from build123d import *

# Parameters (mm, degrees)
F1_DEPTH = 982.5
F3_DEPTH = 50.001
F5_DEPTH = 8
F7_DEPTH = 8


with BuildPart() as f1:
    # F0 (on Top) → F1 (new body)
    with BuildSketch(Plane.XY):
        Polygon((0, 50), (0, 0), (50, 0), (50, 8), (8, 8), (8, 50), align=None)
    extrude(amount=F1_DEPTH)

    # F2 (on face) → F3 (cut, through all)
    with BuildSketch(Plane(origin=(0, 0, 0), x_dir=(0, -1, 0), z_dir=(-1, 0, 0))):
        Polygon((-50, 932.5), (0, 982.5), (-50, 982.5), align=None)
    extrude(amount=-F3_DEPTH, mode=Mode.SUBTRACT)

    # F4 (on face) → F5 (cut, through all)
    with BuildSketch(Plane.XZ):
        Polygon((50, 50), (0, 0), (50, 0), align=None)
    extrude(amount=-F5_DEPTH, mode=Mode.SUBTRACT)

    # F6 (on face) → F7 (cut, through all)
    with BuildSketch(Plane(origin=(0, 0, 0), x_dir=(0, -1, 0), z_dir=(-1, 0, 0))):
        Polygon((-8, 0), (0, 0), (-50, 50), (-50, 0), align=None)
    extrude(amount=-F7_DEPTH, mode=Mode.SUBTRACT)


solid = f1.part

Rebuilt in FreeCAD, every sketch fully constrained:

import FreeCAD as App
import Part
import Sketcher

V = App.Vector
Q = App.Units.Quantity

doc = App.newDocument("Part")
body = doc.addObject("PartDesign::Body", "Body")

# Sketch on XY plane
sketch1 = body.newObject("Sketcher::SketchObject", "Sketch")
sketch1.AttachmentSupport = (doc.getObject("XY_Plane"), [""])
sketch1.MapMode = "FlatFace"
sketch1.addGeometry([
    Part.LineSegment(V(0, 50, 0), V(0, 0, 0)),  # 0
    Part.LineSegment(V(0, 0, 0), V(50, 0, 0)),  # 1
    Part.LineSegment(V(50, 0, 0), V(50, 8, 0)),  # 2
    Part.LineSegment(V(50, 8, 0), V(8, 8, 0)),  # 3
    Part.LineSegment(V(8, 8, 0), V(8, 50, 0)),  # 4
    Part.LineSegment(V(8, 50, 0), V(0, 50, 0)),  # 5
], False)
sketch1.addConstraint([
    Sketcher.Constraint("Coincident", 0, 2, 1, 1),
    Sketcher.Constraint("Coincident", 1, 2, 2, 1),
    Sketcher.Constraint("Coincident", 2, 2, 3, 1),
    Sketcher.Constraint("Coincident", 3, 2, 4, 1),
    Sketcher.Constraint("Coincident", 4, 2, 5, 1),
    Sketcher.Constraint("Coincident", 5, 2, 0, 1),
    Sketcher.Constraint("Vertical", 0),
    Sketcher.Constraint("Horizontal", 1),
    Sketcher.Constraint("Vertical", 2),
    Sketcher.Constraint("Horizontal", 3),
    Sketcher.Constraint("Vertical", 4),
    Sketcher.Constraint("Horizontal", 5),
    Sketcher.Constraint("Coincident", 0, 2, -1, 1),
    Sketcher.Constraint("Equal", 1, 0),
    Sketcher.Constraint("Equal", 5, 2),
    Sketcher.Constraint("DistanceX", 1, 1, 1, 2, Q("50 mm")),
    Sketcher.Constraint("DistanceX", 3, 2, 3, 1, Q("42 mm")),
])
pad1 = body.newObject("PartDesign::Pad", "Pad")
pad1.Profile = sketch1
pad1.Length = 982.5

# Sketch on YZ plane
sketch2 = body.newObject("Sketcher::SketchObject", "Sketch001")
sketch2.AttachmentSupport = (doc.getObject("YZ_Plane"), [""])
sketch2.MapMode = "FlatFace"
sketch2.addGeometry([
    Part.LineSegment(V(50, 932, 0), V(0, 982, 0)),
    Part.LineSegment(V(0, 982, 0), V(50, 982, 0)),
    Part.LineSegment(V(50, 982, 0), V(50, 932, 0)),
], False)
sketch2.addConstraint([
    Sketcher.Constraint("Coincident", 0, 2, 1, 1),
    Sketcher.Constraint("Coincident", 1, 2, 2, 1),
    Sketcher.Constraint("Coincident", 2, 2, 0, 1),
    Sketcher.Constraint("Horizontal", 1),
    Sketcher.Constraint("Vertical", 2),
    Sketcher.Constraint("PointOnObject", 0, 2, -2),
    Sketcher.Constraint("Equal", 1, 2),
    Sketcher.Constraint("DistanceX", 1, 1, 1, 2, Q("50 mm")),
    Sketcher.Constraint("DistanceY", -1, 1, 0, 2, Q("982.5 mm")),
])
pocket1 = body.newObject("PartDesign::Pocket", "Pocket")
pocket1.Profile = sketch2
pocket1.Type = "ThroughAll"
pocket1.Reversed = True

# Sketch on XZ plane
sketch3 = body.newObject("Sketcher::SketchObject", "Sketch002")
sketch3.AttachmentSupport = (doc.getObject("XZ_Plane"), [""])
sketch3.MapMode = "FlatFace"
sketch3.addGeometry([
    Part.LineSegment(V(50, 50, 0), V(0, 0, 0)),
    Part.LineSegment(V(0, 0, 0), V(50, 0, 0)),
    Part.LineSegment(V(50, 0, 0), V(50, 50, 0)),
], False)
sketch3.addConstraint([
    Sketcher.Constraint("Coincident", 0, 2, 1, 1),
    Sketcher.Constraint("Coincident", 1, 2, 2, 1),
    Sketcher.Constraint("Coincident", 2, 2, 0, 1),
    Sketcher.Constraint("Horizontal", 1),
    Sketcher.Constraint("Vertical", 2),
    Sketcher.Constraint("Coincident", 0, 2, -1, 1),
    Sketcher.Constraint("Equal", 1, 2),
    Sketcher.Constraint("DistanceX", 1, 1, 1, 2, Q("50 mm")),
])
pocket2 = body.newObject("PartDesign::Pocket", "Pocket001")
pocket2.Profile = sketch3
pocket2.Length = 8

# Sketch on YZ plane
sketch4 = body.newObject("Sketcher::SketchObject", "Sketch003")
sketch4.AttachmentSupport = (doc.getObject("YZ_Plane"), [""])
sketch4.MapMode = "FlatFace"
sketch4.addGeometry([
    Part.LineSegment(V(0, 0, 0), V(50, 50, 0)),
    Part.LineSegment(V(50, 50, 0), V(50, 0, 0)),
    Part.LineSegment(V(50, 0, 0), V(0, 0, 0)),
], False)
sketch4.addConstraint([
    Sketcher.Constraint("Coincident", 0, 2, 1, 1),
    Sketcher.Constraint("Coincident", 1, 2, 2, 1),
    Sketcher.Constraint("Coincident", 2, 2, 0, 1),
    Sketcher.Constraint("Vertical", 1),
    Sketcher.Constraint("Horizontal", 2),
    Sketcher.Constraint("Coincident", 2, 2, -1, 1),
    Sketcher.Constraint("Equal", 2, 1),
    Sketcher.Constraint("DistanceX", 2, 2, 2, 1, Q("50 mm")),
])
pocket3 = body.newObject("PartDesign::Pocket", "Pocket002")
pocket3.Profile = sketch4
pocket3.Type = "ThroughAll"
pocket3.Reversed = True

doc.recompute()
